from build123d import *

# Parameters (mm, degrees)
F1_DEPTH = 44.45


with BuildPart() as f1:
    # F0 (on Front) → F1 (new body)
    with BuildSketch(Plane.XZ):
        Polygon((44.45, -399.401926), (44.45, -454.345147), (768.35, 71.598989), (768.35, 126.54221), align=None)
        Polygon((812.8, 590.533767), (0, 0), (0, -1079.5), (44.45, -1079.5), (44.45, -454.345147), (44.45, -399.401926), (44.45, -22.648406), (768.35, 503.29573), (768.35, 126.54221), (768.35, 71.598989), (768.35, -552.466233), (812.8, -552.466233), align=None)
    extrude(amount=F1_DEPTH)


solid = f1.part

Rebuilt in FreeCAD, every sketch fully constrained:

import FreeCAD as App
import Part
import Sketcher

V = App.Vector
Q = App.Units.Quantity


def add_polygon(sketch, points):
    """Adds a closed chain of lines whose ends are joined by coincident constraints."""
    first, n = sketch.GeometryCount, len(points)
    for a, b in zip(points, points[1:] + points[:1]):
        sketch.addGeometry(Part.LineSegment(App.Vector(*a, 0), App.Vector(*b, 0)), False)
    for i in range(n):
        sketch.addConstraint(Sketcher.Constraint("Coincident", first + i, 2, first + (i + 1) % n, 1))

doc = App.newDocument("Part")
params = doc.addObject("Spreadsheet::Sheet", "Params")
for row, (alias, value) in enumerate([
    ("sketch1_height", "45 in"),
    ("sketch1_height2", "42.5 in"),
    ("sketch1_width", "1.75 in"),
    ("pad1_length", "1.75 in"),
], start=1):
    params.set(f"A{row}", alias)
    params.set(f"B{row}", "=" + value)
    params.setAlias(f"B{row}", alias)

body = doc.addObject("PartDesign::Body", "Body")

# Sketch on XZ plane
sketch1 = body.newObject("Sketcher::SketchObject", "Sketch")
sketch1.AttachmentSupport = (doc.getObject("XZ_Plane"), [""])
sketch1.MapMode = "FlatFace"
add_polygon(sketch1, [(44.45, -454.345147), (768.35, 71.598989), (768.35, -552.466233), (812.8, -552.466233), (812.8, 590.533767), (0, 0), (0, -1079.5), (44.45, -1079.5)])  # lines 0-7
add_polygon(sketch1, [(768.35, 126.54221), (44.45, -399.401926), (44.45, -22.648406), (768.35, 503.29573)])  # lines 8-11
sketch1.addConstraint(Sketcher.Constraint("Vertical", 1))
sketch1.addConstraint(Sketcher.Constraint("Horizontal", 2))
sketch1.addConstraint(Sketcher.Constraint("Vertical", 3))
sketch1.addConstraint(Sketcher.Constraint("Vertical", 5))
sketch1.addConstraint(Sketcher.Constraint("Horizontal", 6))
sketch1.addConstraint(Sketcher.Constraint("Vertical", 7))
sketch1.addConstraint(Sketcher.Constraint("Vertical", 9))
sketch1.addConstraint(Sketcher.Constraint("Vertical", 11))
sketch1.addConstraint(Sketcher.Constraint("Coincident", 4, 2, -1, 1))
sketch1.addConstraint(Sketcher.Constraint("Parallel", 0, 4))
sketch1.addConstraint(Sketcher.Constraint("Parallel", 4, 8))
sketch1.addConstraint(Sketcher.Constraint("Parallel", 8, 10))
sketch1.addConstraint(Sketcher.Constraint("Vertical", 7, 2, 8, 2))
sketch1.addConstraint(Sketcher.Constraint("Vertical", 1, 2, 10, 2))
sketch1.addConstraint(Sketcher.Constraint("Equal", 2, 6))
sketch1.addConstraint(Sketcher.Constraint("DistanceY", 3, 1, 3, 2, Q("45 in")))
sketch1.addConstraint(Sketcher.Constraint("DistanceY", 5, 2, 5, 1, Q("42.5 in")))
sketch1.addConstraint(Sketcher.Constraint("DistanceX", -1, 1, 2, 2, Q("32 in")))
sketch1.addConstraint(Sketcher.Constraint("Angle", 0, Q("36 deg")))
sketch1.addConstraint(Sketcher.Constraint("DistanceX", 2, 1, 2, 2, Q("1.75 in")))
sketch1.addConstraint(Sketcher.Constraint("DistanceY", 1, 2, 1, 1, Q("624.065222 mm")))
sketch1.addConstraint(Sketcher.Constraint("DistanceY", 9, 1, 9, 2, Q("376.75352 mm")))
sketch1.addConstraint(Sketcher.Constraint("DistanceY", -1, 1, 10, 2, Q("503.29573 mm")))
sketch1.setExpression("Constraints[27]", "Params.sketch1_height")
sketch1.setExpression("Constraints[28]", "Params.sketch1_height2")
sketch1.setExpression("Constraints[31]", "Params.sketch1_width")
pad1 = body.newObject("PartDesign::Pad", "Pad")
pad1.Profile = sketch1
pad1.setExpression("Length", "Params.pad1_length")

doc.recompute()
